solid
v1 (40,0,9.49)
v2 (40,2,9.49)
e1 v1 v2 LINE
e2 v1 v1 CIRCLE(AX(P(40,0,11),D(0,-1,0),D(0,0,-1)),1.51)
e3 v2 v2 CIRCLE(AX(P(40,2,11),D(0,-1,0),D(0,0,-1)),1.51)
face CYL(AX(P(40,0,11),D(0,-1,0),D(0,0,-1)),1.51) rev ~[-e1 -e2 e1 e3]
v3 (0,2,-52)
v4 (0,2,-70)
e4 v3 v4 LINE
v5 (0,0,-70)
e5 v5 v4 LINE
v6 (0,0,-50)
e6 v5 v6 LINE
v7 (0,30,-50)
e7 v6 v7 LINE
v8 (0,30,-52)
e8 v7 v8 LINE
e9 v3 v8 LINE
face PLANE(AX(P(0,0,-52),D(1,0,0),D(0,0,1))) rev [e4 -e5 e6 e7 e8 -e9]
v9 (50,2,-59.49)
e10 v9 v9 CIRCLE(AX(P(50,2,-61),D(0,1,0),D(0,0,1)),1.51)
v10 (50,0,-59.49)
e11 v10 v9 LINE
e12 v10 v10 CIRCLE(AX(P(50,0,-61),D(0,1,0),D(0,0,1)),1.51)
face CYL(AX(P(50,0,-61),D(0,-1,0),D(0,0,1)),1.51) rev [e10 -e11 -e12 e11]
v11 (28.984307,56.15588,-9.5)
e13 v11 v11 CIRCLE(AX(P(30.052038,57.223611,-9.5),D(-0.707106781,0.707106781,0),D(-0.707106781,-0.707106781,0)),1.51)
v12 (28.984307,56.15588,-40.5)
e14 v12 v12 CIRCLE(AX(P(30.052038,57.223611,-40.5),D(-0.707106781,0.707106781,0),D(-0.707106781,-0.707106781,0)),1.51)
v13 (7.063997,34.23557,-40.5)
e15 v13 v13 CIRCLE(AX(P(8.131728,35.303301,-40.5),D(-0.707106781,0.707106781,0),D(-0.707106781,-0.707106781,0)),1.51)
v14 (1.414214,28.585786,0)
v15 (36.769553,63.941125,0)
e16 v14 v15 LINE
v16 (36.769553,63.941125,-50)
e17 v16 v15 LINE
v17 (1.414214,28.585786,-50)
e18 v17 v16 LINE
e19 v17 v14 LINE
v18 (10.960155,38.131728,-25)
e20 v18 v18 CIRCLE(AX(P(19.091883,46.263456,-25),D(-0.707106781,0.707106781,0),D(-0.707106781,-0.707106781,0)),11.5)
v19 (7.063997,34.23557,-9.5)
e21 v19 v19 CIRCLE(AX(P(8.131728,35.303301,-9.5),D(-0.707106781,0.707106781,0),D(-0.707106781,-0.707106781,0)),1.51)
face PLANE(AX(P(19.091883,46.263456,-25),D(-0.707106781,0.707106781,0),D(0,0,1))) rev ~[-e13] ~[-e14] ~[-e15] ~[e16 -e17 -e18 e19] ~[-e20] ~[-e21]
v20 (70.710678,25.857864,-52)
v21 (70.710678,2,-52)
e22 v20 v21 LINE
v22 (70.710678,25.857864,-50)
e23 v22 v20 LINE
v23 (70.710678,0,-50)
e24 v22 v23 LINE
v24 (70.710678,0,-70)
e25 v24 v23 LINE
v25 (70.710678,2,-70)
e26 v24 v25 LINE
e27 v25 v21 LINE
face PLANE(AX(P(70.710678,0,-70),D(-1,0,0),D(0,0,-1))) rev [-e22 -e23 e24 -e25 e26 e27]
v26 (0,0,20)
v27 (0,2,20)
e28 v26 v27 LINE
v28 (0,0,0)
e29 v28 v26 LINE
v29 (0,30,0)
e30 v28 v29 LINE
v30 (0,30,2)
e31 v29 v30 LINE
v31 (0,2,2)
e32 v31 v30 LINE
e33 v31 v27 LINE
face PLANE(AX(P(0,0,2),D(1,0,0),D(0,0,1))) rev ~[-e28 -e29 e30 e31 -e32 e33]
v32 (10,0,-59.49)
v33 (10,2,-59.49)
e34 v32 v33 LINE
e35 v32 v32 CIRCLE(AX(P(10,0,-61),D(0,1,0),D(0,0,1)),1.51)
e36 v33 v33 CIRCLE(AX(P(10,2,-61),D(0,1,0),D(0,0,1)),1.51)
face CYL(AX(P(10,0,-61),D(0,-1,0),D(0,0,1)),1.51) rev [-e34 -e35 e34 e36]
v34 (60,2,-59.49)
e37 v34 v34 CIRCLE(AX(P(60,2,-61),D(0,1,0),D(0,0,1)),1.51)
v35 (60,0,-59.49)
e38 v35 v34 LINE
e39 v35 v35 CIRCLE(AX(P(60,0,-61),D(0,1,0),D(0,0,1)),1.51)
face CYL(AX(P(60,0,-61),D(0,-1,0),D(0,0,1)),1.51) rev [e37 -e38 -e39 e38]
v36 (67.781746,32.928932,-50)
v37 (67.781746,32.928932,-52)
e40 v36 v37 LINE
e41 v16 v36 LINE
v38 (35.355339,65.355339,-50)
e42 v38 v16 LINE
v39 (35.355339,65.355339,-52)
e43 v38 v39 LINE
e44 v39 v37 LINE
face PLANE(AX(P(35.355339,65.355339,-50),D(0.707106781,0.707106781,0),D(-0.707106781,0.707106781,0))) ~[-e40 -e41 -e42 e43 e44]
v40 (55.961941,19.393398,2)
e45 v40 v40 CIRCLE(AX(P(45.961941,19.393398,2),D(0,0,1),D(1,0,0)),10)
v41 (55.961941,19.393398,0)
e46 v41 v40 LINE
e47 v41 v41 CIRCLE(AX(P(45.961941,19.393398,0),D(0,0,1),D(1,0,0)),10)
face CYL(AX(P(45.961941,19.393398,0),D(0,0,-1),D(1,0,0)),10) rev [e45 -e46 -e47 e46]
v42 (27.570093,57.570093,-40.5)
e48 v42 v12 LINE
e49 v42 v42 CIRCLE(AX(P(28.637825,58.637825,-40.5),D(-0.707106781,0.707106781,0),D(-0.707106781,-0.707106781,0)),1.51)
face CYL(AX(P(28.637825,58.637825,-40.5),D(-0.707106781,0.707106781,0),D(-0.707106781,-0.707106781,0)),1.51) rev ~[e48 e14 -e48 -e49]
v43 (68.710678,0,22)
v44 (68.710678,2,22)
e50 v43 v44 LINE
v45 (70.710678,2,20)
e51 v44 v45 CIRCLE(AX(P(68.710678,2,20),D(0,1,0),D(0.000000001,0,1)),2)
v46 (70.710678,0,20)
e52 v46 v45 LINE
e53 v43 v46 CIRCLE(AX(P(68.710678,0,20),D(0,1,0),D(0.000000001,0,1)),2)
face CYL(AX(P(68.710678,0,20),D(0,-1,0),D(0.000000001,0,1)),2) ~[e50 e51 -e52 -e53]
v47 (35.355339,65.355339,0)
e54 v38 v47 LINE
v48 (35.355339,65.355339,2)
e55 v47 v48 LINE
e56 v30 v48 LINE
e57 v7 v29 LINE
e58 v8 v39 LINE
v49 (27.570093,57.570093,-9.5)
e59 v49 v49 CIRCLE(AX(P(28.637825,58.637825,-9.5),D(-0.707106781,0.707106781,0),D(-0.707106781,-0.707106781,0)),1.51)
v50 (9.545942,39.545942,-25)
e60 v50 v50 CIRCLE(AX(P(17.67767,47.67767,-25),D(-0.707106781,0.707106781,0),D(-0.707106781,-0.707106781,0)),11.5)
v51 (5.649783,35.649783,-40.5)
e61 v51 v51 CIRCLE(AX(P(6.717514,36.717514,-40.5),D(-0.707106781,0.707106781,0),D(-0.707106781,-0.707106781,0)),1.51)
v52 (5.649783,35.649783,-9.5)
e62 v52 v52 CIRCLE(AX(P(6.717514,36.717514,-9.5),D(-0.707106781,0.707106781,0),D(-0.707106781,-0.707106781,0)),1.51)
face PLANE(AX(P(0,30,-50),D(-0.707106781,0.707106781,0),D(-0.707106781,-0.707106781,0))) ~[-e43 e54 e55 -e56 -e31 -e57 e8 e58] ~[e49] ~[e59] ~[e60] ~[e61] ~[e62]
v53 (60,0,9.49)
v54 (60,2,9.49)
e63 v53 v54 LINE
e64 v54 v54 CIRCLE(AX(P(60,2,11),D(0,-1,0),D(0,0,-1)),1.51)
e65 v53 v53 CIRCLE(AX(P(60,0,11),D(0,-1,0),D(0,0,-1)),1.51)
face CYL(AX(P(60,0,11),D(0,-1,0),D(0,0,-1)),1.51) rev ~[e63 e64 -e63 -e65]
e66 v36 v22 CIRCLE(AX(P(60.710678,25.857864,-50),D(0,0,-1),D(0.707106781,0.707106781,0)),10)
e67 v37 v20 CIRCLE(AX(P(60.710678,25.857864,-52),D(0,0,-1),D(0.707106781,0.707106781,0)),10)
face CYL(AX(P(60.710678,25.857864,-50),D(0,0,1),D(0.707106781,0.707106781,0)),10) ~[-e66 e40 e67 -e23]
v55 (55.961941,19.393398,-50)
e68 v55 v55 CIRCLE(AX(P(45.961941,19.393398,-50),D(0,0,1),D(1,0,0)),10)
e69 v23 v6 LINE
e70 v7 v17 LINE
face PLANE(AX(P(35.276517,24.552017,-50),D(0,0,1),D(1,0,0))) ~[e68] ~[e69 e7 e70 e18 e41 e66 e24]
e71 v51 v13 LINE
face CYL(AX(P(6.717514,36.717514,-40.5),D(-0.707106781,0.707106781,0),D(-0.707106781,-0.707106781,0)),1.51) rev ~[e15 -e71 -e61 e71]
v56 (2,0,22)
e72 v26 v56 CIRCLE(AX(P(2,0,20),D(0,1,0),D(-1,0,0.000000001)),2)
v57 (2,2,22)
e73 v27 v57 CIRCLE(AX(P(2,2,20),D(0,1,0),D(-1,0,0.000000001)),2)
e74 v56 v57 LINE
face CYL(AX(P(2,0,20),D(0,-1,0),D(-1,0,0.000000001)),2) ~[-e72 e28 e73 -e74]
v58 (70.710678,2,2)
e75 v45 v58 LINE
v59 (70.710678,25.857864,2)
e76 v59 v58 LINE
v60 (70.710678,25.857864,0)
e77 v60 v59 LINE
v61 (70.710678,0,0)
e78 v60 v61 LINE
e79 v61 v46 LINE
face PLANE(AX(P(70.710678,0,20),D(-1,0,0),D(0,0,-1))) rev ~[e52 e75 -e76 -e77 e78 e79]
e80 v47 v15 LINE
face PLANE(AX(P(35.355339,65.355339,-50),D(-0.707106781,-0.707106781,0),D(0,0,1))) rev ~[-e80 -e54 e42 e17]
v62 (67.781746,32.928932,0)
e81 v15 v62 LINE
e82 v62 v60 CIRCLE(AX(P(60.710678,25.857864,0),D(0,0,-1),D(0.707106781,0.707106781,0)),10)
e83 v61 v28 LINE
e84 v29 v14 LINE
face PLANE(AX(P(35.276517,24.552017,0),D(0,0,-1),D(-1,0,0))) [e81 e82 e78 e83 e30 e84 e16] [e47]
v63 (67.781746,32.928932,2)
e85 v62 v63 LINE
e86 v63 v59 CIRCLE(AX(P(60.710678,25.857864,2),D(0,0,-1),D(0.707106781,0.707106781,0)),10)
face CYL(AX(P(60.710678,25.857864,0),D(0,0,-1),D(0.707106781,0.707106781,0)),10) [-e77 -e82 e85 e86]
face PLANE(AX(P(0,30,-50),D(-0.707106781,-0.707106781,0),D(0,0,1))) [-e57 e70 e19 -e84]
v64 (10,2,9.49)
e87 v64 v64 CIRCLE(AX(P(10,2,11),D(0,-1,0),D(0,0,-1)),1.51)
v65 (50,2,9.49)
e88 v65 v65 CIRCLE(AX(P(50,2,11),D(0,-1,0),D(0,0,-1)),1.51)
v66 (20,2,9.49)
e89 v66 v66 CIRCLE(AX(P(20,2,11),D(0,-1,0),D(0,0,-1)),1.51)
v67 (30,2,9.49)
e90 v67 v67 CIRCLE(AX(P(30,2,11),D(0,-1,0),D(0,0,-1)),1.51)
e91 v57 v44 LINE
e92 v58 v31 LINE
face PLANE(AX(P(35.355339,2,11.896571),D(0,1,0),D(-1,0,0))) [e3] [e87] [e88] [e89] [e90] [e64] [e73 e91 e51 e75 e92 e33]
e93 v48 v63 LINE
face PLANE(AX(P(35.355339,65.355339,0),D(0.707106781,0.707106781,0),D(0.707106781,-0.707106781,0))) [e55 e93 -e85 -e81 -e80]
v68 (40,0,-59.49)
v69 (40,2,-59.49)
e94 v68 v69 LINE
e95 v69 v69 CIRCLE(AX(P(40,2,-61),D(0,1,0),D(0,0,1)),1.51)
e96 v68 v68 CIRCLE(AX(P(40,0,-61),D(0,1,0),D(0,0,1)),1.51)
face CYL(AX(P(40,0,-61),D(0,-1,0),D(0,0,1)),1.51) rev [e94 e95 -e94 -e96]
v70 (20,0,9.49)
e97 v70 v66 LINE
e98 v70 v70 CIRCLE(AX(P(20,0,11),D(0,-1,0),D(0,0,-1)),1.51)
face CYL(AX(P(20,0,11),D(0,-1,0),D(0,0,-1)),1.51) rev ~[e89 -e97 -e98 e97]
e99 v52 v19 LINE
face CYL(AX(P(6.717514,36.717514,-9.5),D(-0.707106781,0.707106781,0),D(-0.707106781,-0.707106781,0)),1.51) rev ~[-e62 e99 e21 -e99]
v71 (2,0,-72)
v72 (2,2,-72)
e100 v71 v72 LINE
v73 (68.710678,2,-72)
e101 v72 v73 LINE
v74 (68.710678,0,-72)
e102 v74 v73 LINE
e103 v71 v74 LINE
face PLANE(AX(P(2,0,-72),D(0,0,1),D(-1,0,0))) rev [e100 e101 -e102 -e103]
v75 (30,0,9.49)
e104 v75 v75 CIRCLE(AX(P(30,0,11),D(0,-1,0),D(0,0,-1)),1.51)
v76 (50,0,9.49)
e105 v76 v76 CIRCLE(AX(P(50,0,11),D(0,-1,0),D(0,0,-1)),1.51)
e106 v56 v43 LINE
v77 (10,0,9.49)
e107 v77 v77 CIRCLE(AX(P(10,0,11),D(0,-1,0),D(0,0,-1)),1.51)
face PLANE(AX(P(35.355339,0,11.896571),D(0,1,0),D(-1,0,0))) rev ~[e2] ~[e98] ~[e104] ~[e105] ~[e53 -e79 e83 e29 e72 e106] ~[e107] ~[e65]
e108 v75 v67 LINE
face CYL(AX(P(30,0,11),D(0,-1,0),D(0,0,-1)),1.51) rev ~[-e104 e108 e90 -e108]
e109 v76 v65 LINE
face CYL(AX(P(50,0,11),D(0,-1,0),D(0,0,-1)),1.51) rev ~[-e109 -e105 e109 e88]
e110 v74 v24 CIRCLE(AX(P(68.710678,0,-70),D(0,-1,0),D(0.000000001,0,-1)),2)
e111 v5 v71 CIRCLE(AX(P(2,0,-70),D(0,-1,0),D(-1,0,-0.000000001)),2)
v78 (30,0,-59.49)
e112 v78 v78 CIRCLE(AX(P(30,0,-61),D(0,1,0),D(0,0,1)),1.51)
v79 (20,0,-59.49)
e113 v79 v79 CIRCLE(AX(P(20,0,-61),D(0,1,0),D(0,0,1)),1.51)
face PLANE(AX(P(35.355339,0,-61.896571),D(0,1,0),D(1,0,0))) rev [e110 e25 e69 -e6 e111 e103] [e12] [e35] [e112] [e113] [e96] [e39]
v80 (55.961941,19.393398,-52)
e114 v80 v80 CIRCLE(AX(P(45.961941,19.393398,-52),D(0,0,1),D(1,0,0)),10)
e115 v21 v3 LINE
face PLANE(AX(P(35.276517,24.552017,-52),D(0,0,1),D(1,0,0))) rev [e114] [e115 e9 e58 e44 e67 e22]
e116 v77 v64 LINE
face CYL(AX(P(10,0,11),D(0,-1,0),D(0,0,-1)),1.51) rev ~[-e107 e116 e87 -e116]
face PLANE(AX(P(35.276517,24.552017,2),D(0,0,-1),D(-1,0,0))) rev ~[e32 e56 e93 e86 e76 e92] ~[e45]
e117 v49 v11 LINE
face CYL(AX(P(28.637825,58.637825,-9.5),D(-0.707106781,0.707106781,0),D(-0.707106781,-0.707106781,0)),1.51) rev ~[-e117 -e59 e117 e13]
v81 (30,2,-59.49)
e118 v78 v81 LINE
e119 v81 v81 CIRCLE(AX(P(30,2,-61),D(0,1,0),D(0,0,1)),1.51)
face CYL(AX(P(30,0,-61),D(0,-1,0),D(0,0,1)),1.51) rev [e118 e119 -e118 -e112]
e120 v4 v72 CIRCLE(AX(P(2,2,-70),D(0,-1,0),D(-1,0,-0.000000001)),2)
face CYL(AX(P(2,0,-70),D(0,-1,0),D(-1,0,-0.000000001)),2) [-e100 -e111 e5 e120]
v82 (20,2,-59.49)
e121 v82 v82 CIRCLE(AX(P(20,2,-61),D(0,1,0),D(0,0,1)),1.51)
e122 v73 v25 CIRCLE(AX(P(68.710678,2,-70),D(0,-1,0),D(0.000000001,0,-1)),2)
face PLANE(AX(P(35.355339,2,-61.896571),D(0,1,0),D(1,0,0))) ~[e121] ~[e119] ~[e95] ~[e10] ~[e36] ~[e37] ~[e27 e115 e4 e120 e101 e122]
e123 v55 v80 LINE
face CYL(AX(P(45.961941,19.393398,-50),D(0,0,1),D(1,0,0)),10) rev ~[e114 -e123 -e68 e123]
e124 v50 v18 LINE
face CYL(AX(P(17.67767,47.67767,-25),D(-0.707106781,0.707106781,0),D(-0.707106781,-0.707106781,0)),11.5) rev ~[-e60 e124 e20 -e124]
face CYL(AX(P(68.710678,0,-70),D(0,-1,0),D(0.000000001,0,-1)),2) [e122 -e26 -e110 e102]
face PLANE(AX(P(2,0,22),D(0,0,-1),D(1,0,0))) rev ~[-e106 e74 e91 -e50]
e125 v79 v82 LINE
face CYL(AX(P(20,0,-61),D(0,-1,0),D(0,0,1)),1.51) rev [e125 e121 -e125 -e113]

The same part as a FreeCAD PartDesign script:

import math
import FreeCAD as App
import Part
import Sketcher
Q = App.Units.Quantity


def add_polygon(sketch, points):
    """Adds a closed chain of lines whose ends are joined by coincident constraints."""
    first, n = sketch.GeometryCount, len(points)
    for a, b in zip(points, points[1:] + points[:1]):
        sketch.addGeometry(Part.LineSegment(App.Vector(*a, 0), App.Vector(*b, 0)), False)
    for i in range(n):
        sketch.addConstraint(Sketcher.Constraint("Coincident", first + i, 2, first + (i + 1) % n, 1))

doc = App.newDocument("Part")
body = doc.addObject("PartDesign::Body", "Body")

sketch1 = body.newObject("Sketcher::SketchObject", "Sketch")
sketch1.AttachmentSupport = (doc.getObject("XY_Plane"), [""])
sketch1.MapMode = "FlatFace"
sketch1.addGeometry([
    Part.LineSegment(App.Vector(0, 30, 0), App.Vector(0, 0, 0)),
    Part.LineSegment(App.Vector(0, 0, 0), App.Vector(71, 0, 0)),
    Part.LineSegment(App.Vector(71, 0, 0), App.Vector(71, 26, 0)),
    Part.ArcOfCircle(Part.Circle(App.Vector(61, 26, 0), App.Vector(0, 0, 1), 10), math.radians(0), math.radians(45)),
    Part.LineSegment(App.Vector(68, 33, 0), App.Vector(35, 65, 0)),
    Part.LineSegment(App.Vector(35, 65, 0), App.Vector(0, 30, 0)),
    Part.Circle(App.Vector(46, 19, 0), App.Vector(0, 0, 1), 10),
], False)
sketch1.addConstraint([
    Sketcher.Constraint("Coincident", 0, 2, 1, 1),
    Sketcher.Constraint("Coincident", 1, 2, 2, 1),
    Sketcher.Constraint("Tangent", 2, 2, 3, 1),
    Sketcher.Constraint("Tangent", 3, 2, 4, 1),
    Sketcher.Constraint("Coincident", 4, 2, 5, 1),
    Sketcher.Constraint("Coincident", 5, 2, 0, 1),
    Sketcher.Constraint("Vertical", 0),
    Sketcher.Constraint("Horizontal", 1),
    Sketcher.Constraint("Vertical", 2),
    Sketcher.Constraint("Coincident", 0, 2, -1, 1),
    Sketcher.Constraint("Equal", 3, 6),
    Sketcher.Constraint("Perpendicular", 4, 5),
    Sketcher.Constraint("Diameter", 6, 20.0),
    Sketcher.Constraint("DistanceY", 0, 2, 0, 1, 30.0),
    Sketcher.Constraint("Angle", 4, Q("135 deg")),
    Sketcher.Constraint("Distance", 5, 50.0),
    Sketcher.Constraint("DistanceX", 1, 1, 1, 2, 70.710678),
    Sketcher.Constraint("DistanceY", -1, 1, 6, 3, 19.393398),
    Sketcher.Constraint("DistanceX", 4, 2, 6, 3, 10.606602),
])
pad1 = body.newObject("PartDesign::Pad", "Pad")
pad1.Profile = sketch1
pad1.Length = 2

sketch2 = body.newObject("Sketcher::SketchObject", "Sketch001")
sketch2.Placement = App.Placement(App.Vector(-15, 15, 0), App.Rotation(App.Vector(0, 0, 1), App.Vector(0.707106781, 0.707106781, 0), App.Vector(-0.707106781, 0.707106781, 0), "ZXY"))
add_polygon(sketch2, [(-50, 71.2), (-50, 21.2), (0, 21.2), (0, 71.2)])
sketch2.addGeometry(Part.Circle(App.Vector(-40.5, 30.7, 0), App.Vector(0, 0, 1), 1.5), False)
sketch2.addGeometry(Part.Circle(App.Vector(-9.5, 30.7, 0), App.Vector(0, 0, 1), 1.5), False)
sketch2.addGeometry(Part.Circle(App.Vector(-40.5, 61.7, 0), App.Vector(0, 0, 1), 1.5), False)
sketch2.addGeometry(Part.Circle(App.Vector(-25, 46.2, 0), App.Vector(0, 0, 1), 11.5), False)
sketch2.addGeometry(Part.Circle(App.Vector(-9.5, 61.7, 0), App.Vector(0, 0, 1), 1.5), False)
sketch2.addConstraint([
    Sketcher.Constraint("Vertical", 0),
    Sketcher.Constraint("Horizontal", 1),
    Sketcher.Constraint("Vertical", 2),
    Sketcher.Constraint("Horizontal", 3),
    Sketcher.Constraint("Equal", 4, 5),
    Sketcher.Constraint("Equal", 5, 6),
    Sketcher.Constraint("Equal", 6, 8),
    Sketcher.Constraint("PointOnObject", 1, 2, -2),
    Sketcher.Constraint("Horizontal", 4, 3, 5, 3),
    Sketcher.Constraint("Horizontal", 6, 3, 8, 3),
    Sketcher.Constraint("Vertical", 4, 3, 6, 3),
    Sketcher.Constraint("Vertical", 5, 3, 8, 3),
    Sketcher.Constraint("Equal", 3, 0),
    Sketcher.Constraint("Diameter", 7, 23.0),
    Sketcher.Constraint("Diameter", 4, 3.02),
    Sketcher.Constraint("DistanceX", 1, 1, 1, 2, 50.0),
    Sketcher.Constraint("DistanceX", 7, 3, -1, 1, 25.0),
    Sketcher.Constraint("DistanceX", 4, 3, 5, 3, 31.0),
    Sketcher.Constraint("DistanceY", 4, 3, 6, 3, 31.0),
    Sketcher.Constraint("DistanceY", 0, 2, 7, 3, 25.0),
    Sketcher.Constraint("DistanceX", 4, 3, -1, 1, 40.5),
    Sketcher.Constraint("DistanceY", 7, 3, 6, 3, 15.5),
    Sketcher.Constraint("DistanceY", -1, 1, 4, 3, 30.713203),
])
pad2 = body.newObject("PartDesign::Pad", "Pad001")
pad2.Profile = sketch2
pad2.Length = 2
pad2.Reversed = True

sketch3 = body.newObject("Sketcher::SketchObject", "Sketch002")
sketch3.AttachmentSupport = (doc.getObject("XZ_Plane"), [""])
sketch3.MapMode = "FlatFace"
sketch3.addGeometry([
    Part.LineSegment(App.Vector(0, 20, 0), App.Vector(0, 2, 0)),
    Part.LineSegment(App.Vector(0, 2, 0), App.Vector(70.7, 2, 0)),
    Part.LineSegment(App.Vector(70.7, 2, 0), App.Vector(70.7, 20, 0)),
    Part.ArcOfCircle(Part.Circle(App.Vector(68.7, 20, 0), App.Vector(0, 0, 1), 2), math.radians(0), math.radians(90)),
    Part.LineSegment(App.Vector(68.7, 22, 0), App.Vector(2, 22, 0)),
    Part.ArcOfCircle(Part.Circle(App.Vector(2, 20, 0), App.Vector(0, 0, 1), 2), math.radians(90), math.radians(180)),
    Part.Circle(App.Vector(60, 11, 0), App.Vector(0, 0, 1), 1.5),
    Part.Circle(App.Vector(50, 11, 0), App.Vector(0, 0, 1), 1.5),
    Part.Circle(App.Vector(40, 11, 0), App.Vector(0, 0, 1), 1.5),
    Part.Circle(App.Vector(30, 11, 0), App.Vector(0, 0, 1), 1.5),
    Part.Circle(App.Vector(20, 11, 0), App.Vector(0, 0, 1), 1.5),
    Part.Circle(App.Vector(10, 11, 0), App.Vector(0, 0, 1), 1.5),
], False)
sketch3.addConstraint([
    Sketcher.Constraint("Coincident", 0, 2, 1, 1),
    Sketcher.Constraint("Coincident", 1, 2, 2, 1),
    Sketcher.Constraint("Tangent", 2, 2, 3, 1),
    Sketcher.Constraint("Tangent", 3, 2, 4, 1),
    Sketcher.Constraint("Tangent", 4, 2, 5, 1),
    Sketcher.Constraint("Tangent", 5, 2, 0, 1),
    Sketcher.Constraint("Vertical", 0),
    Sketcher.Constraint("Horizontal", 1),
    Sketcher.Constraint("Vertical", 2),
    Sketcher.Constraint("Horizontal", 4),
    Sketcher.Constraint("Equal", 3, 5),
    Sketcher.Constraint("Equal", 6, 7),
    Sketcher.Constraint("Equal", 7, 8),
    Sketcher.Constraint("Equal", 8, 9),
    Sketcher.Constraint("Equal", 9, 10),
    Sketcher.Constraint("Equal", 10, 11),
    Sketcher.Constraint("PointOnObject", 0, 2, -2),
    Sketcher.Constraint("Horizontal", 6, 3, 7, 3),
    Sketcher.Constraint("Horizontal", 7, 3, 8, 3),
    Sketcher.Constraint("Horizontal", 8, 3, 9, 3),
    Sketcher.Constraint("Horizontal", 9, 3, 10, 3),
    Sketcher.Constraint("Horizontal", 10, 3, 11, 3),
    Sketcher.Constraint("Radius", 3, 2.0),
    Sketcher.Constraint("Diameter", 6, 3.02),
    Sketcher.Constraint("DistanceY", 0, 2, 0, 1, 18.0),
    Sketcher.Constraint("DistanceY", -1, 1, 3, 3, 20.0),
    Sketcher.Constraint("DistanceX", -1, 1, 6, 3, 60.0),
    Sketcher.Constraint("DistanceY", -1, 1, 6, 3, 11.0),
    Sketcher.Constraint("DistanceX", -1, 1, 7, 3, 50.0),
    Sketcher.Constraint("DistanceX", -1, 1, 8, 3, 40.0),
    Sketcher.Constraint("DistanceX", -1, 1, 9, 3, 30.0),
    Sketcher.Constraint("DistanceX", -1, 1, 10, 3, 20.0),
    Sketcher.Constraint("DistanceX", -1, 1, 11, 3, 10.0),
    Sketcher.Constraint("DistanceX", 1, 1, 1, 2, 70.710678),
])
pad3 = body.newObject("PartDesign::Pad", "Pad002")
pad3.Profile = sketch3
pad3.Length = 2
pad3.Reversed = True
doc.recompute()

datumplane = body.newObject("PartDesign::Plane", "DatumPlane")
datumplane.AttachmentSupport = (doc.getObject("XY_Plane"), [""])
datumplane.MapMode = "FlatFace"
datumplane.AttachmentOffset = App.Placement(App.Vector(0, 0, -25), App.Rotation())
mirrored = body.newObject("PartDesign::Mirrored", "Mirrored")
mirrored.Originals = [pad1, pad3]
mirrored.MirrorPlane = (datumplane, [""])
body.Tip = mirrored

doc.recompute()
